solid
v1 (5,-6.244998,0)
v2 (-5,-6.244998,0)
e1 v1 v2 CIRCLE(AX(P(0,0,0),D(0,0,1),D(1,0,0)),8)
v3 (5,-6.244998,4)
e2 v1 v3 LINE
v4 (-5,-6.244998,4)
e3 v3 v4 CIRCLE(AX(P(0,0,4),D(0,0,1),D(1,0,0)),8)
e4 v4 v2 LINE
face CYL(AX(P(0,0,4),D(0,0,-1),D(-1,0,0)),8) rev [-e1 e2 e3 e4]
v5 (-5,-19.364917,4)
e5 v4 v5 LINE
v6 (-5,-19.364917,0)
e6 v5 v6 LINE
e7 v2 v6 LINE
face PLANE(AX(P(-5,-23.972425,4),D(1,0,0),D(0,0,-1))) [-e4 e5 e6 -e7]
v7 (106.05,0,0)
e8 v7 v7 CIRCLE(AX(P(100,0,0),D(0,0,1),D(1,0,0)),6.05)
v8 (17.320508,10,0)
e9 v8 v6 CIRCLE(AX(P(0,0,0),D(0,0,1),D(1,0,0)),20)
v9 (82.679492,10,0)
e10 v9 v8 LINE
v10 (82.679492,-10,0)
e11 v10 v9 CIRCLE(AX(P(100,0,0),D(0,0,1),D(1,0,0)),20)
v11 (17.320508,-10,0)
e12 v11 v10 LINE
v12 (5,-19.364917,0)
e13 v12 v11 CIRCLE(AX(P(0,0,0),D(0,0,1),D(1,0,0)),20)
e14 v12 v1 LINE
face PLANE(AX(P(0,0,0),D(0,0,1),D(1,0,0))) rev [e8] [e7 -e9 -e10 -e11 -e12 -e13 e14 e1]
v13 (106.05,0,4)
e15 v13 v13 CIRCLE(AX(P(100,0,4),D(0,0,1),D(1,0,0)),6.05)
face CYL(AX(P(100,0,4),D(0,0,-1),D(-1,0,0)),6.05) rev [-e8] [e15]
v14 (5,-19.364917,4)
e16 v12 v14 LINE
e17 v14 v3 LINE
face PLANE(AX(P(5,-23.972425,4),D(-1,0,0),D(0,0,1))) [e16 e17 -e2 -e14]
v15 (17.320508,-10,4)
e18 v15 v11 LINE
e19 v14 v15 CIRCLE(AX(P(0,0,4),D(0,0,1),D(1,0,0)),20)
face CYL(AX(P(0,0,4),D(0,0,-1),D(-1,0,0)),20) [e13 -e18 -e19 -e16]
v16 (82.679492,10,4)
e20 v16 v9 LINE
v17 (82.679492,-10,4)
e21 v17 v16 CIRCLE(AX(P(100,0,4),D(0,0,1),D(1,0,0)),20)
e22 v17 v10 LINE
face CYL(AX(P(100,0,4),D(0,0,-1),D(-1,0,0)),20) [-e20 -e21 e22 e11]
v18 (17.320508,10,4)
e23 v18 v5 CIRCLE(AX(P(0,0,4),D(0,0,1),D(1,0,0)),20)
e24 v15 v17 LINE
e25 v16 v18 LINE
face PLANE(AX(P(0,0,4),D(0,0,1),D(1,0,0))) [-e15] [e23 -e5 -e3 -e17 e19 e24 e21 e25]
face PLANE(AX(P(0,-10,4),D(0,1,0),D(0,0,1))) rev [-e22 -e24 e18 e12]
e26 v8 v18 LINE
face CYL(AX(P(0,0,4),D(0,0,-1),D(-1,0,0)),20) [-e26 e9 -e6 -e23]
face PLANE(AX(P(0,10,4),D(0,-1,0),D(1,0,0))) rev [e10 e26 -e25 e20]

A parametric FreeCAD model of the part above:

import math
import FreeCAD as App
import Part
import Sketcher

doc = App.newDocument("Part")
body = doc.addObject("PartDesign::Body", "Body")

# Sketch on XY plane
sketch1 = body.newObject("Sketcher::SketchObject", "Sketch")
sketch1.AttachmentSupport = (doc.getObject("XY_Plane"), [""])
sketch1.MapMode = "FlatFace"
sketch1.addGeometry(Part.Circle(App.Vector(0, 0, 0), App.Vector(0, 0, 1), 20), False)
sketch1.addConstraint([
    Sketcher.Constraint("Coincident", 0, 3, -1, 1),
    Sketcher.Constraint("Diameter", 0, 40.0),
])
pad1 = body.newObject("PartDesign::Pad", "Pad")
pad1.Profile = sketch1
pad1.Length = 4

# Sketch on XY plane
sketch2 = body.newObject("Sketcher::SketchObject", "Sketch001")
sketch2.AttachmentSupport = (doc.getObject("XY_Plane"), [""])
sketch2.MapMode = "FlatFace"
sketch2.addGeometry([
    Part.ArcOfCircle(Part.Circle(App.Vector(100, 0, 0), App.Vector(0, 0, 1), 20), math.radians(0), math.radians(150)),  # 0
    Part.LineSegment(App.Vector(83, 10, 0), App.Vector(0, 10, 0)),  # 1
    Part.LineSegment(App.Vector(0, 10, 0), App.Vector(0, -10, 0)),  # 2
    Part.LineSegment(App.Vector(0, -10, 0), App.Vector(83, -10, 0)),  # 3
    Part.ArcOfCircle(Part.Circle(App.Vector(100, 0, 0), App.Vector(0, 0, 1), 20), math.radians(-150), math.radians(0)),  # 4
], False)
sketch2.addConstraint([
    Sketcher.Constraint("Coincident", 0, 2, 1, 1),
    Sketcher.Constraint("Coincident", 1, 2, 2, 1),
    Sketcher.Constraint("Coincident", 2, 2, 3, 1),
    Sketcher.Constraint("Coincident", 3, 2, 4, 1),
    Sketcher.Constraint("Tangent", 4, 2, 0, 1),
    Sketcher.Constraint("Horizontal", 1),
    Sketcher.Constraint("Vertical", 2),
    Sketcher.Constraint("Horizontal", 3),
    Sketcher.Constraint("Equal", 0, 4),
    Sketcher.Constraint("Symmetric", 1, 2, 2, 2, -1, 1),
    Sketcher.Constraint("PointOnObject", 0, 3, -1),
    Sketcher.Constraint("PointOnObject", 4, 2, -1),
    Sketcher.Constraint("Radius", 0, 20.0),
    Sketcher.Constraint("DistanceY", 2, 2, 2, 1, 20.0),
    Sketcher.Constraint("DistanceX", -1, 1, 0, 3, 100.0),
])
pad2 = body.newObject("PartDesign::Pad", "Pad001")
pad2.Profile = sketch2
pad2.Length = 4

# Sketch on XY plane
sketch3 = body.newObject("Sketcher::SketchObject", "Sketch002")
sketch3.AttachmentSupport = (doc.getObject("XY_Plane"), [""])
sketch3.MapMode = "FlatFace"
sketch3.addGeometry(Part.Circle(App.Vector(0, 0, 0), App.Vector(0, 0, 1), 8), False)
sketch3.addConstraint([
    Sketcher.Constraint("Coincident", 0, 3, -1, 1),
    Sketcher.Constraint("Diameter", 0, 16.0),
])
pocket1 = body.newObject("PartDesign::Pocket", "Pocket")
pocket1.Profile = sketch3
pocket1.Length = 4
pocket1.Reversed = True

# Sketch on XY plane
sketch4 = body.newObject("Sketcher::SketchObject", "Sketch003")
sketch4.AttachmentSupport = (doc.getObject("XY_Plane"), [""])
sketch4.MapMode = "FlatFace"
sketch4.addGeometry([
    Part.LineSegment(App.Vector(-5, -5, 0), App.Vector(-5, -24, 0)),
    Part.LineSegment(App.Vector(-5, -24, 0), App.Vector(5, -24, 0)),
    Part.LineSegment(App.Vector(5, -24, 0), App.Vector(5, -5, 0)),
    Part.LineSegment(App.Vector(5, -5, 0), App.Vector(-5, -5, 0)),
], False)
sketch4.addConstraint([
    Sketcher.Constraint("Coincident", 0, 2, 1, 1),
    Sketcher.Constraint("Coincident", 1, 2, 2, 1),
    Sketcher.Constraint("Coincident", 2, 2, 3, 1),
    Sketcher.Constraint("Coincident", 3, 2, 0, 1),
    Sketcher.Constraint("Vertical", 0),
    Sketcher.Constraint("Horizontal", 1),
    Sketcher.Constraint("Vertical", 2),
    Sketcher.Constraint("Horizontal", 3),
    Sketcher.Constraint("DistanceX", 1, 1, 1, 2, 10.0),
    Sketcher.Constraint("DistanceX", 0, 2, -1, 1, 5.0),
    Sketcher.Constraint("DistanceY", 0, 2, 0, 1, 19.132812),
    Sketcher.Constraint("DistanceY", 0, 2, -1, 1, 23.972425),
])
pocket2 = body.newObject("PartDesign::Pocket", "Pocket001")
pocket2.Profile = sketch4
pocket2.Length = 4
pocket2.Reversed = True

# Sketch on XY plane
sketch5 = body.newObject("Sketcher::SketchObject", "Sketch004")
sketch5.AttachmentSupport = (doc.getObject("XY_Plane"), [""])
sketch5.MapMode = "FlatFace"
sketch5.addGeometry(Part.Circle(App.Vector(100, 0, 0), App.Vector(0, 0, 1), 6), False)
sketch5.addConstraint([
    Sketcher.Constraint("PointOnObject", 0, 3, -1),
    Sketcher.Constraint("Diameter", 0, 12.1),
    Sketcher.Constraint("DistanceX", -1, 1, 0, 3, 100.0),
])
pocket3 = body.newObject("PartDesign::Pocket", "Pocket002")
pocket3.Profile = sketch5
pocket3.Length = 4
pocket3.Reversed = True

doc.recompute()
